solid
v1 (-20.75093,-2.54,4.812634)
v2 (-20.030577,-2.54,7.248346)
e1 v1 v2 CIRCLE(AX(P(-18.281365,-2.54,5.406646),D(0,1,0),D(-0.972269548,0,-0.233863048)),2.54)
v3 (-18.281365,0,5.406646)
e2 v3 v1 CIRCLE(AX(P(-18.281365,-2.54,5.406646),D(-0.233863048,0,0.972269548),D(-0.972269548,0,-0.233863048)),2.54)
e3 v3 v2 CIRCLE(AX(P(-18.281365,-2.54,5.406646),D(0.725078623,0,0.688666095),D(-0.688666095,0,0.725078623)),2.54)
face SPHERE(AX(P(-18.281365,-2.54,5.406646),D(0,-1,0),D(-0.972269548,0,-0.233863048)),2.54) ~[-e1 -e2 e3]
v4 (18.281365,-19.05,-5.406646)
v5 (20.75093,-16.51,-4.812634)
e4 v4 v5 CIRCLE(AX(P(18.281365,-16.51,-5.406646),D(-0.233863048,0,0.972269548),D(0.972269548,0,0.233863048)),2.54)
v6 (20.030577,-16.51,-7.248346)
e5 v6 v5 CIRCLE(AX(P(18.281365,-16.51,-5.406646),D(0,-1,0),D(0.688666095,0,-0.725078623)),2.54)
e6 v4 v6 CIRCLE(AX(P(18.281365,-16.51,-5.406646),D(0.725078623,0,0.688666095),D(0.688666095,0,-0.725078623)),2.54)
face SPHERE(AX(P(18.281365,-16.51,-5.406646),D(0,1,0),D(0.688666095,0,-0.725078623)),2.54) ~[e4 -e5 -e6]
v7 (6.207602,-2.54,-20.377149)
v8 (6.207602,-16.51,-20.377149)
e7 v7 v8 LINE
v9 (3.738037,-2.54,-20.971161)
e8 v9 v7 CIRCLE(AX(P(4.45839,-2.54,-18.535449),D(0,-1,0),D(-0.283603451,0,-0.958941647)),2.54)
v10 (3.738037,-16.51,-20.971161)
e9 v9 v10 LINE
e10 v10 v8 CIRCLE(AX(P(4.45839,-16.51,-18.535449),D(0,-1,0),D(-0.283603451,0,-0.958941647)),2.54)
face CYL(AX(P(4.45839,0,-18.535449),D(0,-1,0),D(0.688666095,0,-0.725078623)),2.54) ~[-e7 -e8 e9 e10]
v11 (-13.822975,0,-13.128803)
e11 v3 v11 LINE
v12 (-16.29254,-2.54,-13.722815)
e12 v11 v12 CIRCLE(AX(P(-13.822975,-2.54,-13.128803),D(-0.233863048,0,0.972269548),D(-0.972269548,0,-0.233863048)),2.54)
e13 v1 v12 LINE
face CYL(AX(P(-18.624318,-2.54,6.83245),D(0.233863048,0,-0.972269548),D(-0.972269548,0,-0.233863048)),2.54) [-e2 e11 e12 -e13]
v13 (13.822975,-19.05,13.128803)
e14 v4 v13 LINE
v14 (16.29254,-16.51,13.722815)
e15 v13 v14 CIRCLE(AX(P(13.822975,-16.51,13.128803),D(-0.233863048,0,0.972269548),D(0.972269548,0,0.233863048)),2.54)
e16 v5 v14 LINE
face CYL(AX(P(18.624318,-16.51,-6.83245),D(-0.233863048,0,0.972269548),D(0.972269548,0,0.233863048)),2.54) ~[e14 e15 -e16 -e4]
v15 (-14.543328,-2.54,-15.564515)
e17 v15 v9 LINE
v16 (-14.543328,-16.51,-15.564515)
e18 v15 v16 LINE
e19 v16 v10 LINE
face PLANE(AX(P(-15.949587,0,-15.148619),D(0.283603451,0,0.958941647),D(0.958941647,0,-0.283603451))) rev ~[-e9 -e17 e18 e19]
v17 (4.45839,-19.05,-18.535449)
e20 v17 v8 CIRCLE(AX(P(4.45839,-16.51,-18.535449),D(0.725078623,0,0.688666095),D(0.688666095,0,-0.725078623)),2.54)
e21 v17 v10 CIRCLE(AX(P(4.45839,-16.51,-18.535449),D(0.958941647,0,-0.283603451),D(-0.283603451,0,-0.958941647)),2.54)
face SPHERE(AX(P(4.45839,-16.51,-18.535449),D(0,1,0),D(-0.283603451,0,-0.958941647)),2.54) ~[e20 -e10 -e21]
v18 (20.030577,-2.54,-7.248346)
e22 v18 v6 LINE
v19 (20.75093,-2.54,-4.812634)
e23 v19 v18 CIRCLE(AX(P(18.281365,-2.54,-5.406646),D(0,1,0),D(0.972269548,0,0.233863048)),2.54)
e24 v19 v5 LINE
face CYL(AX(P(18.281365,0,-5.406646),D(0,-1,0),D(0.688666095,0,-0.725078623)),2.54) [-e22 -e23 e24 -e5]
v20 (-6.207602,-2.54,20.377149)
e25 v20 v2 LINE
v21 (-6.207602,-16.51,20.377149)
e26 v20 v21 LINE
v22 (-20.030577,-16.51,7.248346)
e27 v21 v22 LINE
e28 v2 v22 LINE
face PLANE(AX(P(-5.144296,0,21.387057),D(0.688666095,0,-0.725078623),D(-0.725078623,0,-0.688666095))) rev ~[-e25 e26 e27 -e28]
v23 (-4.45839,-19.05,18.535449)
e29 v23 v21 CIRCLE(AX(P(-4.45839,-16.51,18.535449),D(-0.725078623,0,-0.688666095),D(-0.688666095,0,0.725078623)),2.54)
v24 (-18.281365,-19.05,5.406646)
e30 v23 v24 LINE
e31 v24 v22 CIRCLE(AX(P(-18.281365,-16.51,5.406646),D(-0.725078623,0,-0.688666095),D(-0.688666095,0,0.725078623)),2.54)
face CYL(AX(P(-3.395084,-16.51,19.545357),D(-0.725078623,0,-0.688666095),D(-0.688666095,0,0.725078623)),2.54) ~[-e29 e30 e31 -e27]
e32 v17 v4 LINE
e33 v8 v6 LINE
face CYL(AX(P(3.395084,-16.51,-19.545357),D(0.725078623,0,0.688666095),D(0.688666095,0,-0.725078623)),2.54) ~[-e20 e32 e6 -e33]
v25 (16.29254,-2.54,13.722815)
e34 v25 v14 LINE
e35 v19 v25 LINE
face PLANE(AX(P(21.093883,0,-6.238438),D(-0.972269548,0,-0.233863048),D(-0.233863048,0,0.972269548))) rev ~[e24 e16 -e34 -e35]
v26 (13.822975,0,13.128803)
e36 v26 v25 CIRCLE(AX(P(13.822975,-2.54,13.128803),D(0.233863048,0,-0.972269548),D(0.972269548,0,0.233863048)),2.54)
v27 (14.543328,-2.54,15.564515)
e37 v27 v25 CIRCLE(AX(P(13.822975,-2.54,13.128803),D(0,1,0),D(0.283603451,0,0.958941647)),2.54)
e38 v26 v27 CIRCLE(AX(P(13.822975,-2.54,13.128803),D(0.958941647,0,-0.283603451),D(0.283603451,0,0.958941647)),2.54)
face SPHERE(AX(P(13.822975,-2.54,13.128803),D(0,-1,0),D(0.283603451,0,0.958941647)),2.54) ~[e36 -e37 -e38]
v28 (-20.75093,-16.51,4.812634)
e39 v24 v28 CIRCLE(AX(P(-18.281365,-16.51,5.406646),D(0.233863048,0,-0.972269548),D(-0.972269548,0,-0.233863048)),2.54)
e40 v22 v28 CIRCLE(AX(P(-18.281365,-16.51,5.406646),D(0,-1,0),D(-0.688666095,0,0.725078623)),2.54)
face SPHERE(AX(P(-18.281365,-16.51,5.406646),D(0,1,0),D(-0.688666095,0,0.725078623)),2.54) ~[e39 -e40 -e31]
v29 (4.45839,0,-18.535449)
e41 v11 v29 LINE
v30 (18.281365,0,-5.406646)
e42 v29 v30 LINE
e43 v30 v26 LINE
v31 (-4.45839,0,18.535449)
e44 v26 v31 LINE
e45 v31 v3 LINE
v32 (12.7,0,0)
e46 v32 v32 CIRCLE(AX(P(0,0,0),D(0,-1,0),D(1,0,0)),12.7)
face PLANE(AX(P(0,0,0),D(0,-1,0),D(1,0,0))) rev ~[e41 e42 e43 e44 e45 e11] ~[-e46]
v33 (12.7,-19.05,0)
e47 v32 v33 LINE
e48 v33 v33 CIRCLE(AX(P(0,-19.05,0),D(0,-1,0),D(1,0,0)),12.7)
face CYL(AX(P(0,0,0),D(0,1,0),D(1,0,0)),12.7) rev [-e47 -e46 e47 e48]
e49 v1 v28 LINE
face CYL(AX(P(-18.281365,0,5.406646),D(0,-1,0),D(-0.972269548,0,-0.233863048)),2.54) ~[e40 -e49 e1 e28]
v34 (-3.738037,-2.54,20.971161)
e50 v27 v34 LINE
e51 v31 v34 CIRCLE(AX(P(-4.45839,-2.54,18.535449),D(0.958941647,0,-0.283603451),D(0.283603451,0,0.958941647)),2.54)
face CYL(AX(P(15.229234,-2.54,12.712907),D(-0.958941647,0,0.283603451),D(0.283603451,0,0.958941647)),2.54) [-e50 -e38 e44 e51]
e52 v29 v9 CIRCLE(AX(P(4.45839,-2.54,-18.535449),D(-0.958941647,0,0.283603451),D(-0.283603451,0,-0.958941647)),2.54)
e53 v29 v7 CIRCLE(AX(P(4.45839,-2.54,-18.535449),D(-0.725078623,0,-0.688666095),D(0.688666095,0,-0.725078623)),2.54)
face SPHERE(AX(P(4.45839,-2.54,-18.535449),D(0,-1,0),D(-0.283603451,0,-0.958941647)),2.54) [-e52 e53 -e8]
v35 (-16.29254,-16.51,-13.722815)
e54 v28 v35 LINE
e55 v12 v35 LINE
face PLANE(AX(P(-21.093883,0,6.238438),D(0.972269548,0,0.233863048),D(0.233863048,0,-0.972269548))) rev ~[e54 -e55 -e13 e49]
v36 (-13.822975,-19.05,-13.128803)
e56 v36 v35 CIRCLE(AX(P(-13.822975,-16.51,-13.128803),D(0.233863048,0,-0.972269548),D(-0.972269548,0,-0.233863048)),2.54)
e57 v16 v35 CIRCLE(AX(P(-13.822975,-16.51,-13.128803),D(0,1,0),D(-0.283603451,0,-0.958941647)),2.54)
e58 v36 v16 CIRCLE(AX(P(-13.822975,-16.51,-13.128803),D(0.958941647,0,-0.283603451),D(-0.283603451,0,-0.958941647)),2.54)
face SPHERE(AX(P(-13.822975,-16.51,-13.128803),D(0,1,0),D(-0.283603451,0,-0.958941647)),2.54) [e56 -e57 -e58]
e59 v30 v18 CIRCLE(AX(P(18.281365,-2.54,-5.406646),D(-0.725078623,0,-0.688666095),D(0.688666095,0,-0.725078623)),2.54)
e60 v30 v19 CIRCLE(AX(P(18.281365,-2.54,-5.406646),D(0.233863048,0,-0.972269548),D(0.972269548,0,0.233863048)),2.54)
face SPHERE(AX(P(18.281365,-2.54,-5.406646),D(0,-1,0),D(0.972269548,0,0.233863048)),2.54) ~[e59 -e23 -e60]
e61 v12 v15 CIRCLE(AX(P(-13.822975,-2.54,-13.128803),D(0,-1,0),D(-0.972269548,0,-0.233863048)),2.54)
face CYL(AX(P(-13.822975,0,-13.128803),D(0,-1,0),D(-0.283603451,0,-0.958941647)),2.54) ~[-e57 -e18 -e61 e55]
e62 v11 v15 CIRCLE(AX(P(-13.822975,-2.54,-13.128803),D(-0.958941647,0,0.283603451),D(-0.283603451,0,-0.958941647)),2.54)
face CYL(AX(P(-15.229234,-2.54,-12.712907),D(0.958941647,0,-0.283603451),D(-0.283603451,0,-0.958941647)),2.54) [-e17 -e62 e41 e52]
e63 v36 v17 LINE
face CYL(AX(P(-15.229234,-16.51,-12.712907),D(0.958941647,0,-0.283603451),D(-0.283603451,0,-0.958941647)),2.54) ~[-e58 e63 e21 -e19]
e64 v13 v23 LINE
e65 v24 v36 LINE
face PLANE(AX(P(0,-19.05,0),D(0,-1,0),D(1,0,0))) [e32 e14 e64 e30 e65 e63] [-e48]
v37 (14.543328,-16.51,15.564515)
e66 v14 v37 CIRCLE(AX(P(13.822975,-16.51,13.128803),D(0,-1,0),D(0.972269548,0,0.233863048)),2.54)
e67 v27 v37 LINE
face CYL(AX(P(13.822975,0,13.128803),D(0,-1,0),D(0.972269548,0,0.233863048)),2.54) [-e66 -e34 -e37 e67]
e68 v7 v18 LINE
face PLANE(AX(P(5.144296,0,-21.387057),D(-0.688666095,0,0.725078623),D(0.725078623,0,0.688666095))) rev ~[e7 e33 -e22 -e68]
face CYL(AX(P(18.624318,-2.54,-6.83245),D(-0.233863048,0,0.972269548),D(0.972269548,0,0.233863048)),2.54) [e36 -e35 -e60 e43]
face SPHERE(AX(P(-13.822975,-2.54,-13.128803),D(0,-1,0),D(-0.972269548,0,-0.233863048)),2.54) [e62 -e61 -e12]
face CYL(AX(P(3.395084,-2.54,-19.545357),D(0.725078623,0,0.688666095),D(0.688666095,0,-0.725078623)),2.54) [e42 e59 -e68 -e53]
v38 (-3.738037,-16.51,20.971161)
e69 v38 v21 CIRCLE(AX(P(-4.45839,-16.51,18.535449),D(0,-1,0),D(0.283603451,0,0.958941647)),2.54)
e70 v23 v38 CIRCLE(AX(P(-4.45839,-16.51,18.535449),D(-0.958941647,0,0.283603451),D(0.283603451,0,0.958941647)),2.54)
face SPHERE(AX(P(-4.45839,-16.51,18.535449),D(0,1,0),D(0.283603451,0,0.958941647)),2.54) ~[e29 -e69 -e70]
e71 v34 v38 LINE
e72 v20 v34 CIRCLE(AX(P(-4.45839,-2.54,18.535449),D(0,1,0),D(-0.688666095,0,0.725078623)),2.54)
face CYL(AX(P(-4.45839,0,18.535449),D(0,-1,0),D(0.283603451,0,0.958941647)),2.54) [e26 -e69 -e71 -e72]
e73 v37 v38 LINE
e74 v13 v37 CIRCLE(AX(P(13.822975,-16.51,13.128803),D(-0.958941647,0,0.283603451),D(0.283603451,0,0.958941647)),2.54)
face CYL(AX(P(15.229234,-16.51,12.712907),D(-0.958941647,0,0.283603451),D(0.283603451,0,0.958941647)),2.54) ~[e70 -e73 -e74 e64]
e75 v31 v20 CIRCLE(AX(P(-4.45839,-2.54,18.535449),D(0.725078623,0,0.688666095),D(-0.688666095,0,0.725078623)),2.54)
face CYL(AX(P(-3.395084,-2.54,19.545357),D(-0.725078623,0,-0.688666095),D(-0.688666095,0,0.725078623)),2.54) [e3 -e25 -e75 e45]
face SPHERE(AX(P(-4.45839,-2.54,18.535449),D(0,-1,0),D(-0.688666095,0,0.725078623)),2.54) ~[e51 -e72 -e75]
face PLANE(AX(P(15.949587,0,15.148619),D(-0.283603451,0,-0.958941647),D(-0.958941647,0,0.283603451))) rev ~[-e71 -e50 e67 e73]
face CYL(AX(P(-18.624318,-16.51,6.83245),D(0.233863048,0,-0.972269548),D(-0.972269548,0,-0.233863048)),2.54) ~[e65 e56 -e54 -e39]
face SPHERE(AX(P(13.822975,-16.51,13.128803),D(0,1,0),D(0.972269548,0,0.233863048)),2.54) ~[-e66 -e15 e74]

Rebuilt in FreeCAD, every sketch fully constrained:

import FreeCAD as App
import Part
import Sketcher
Q = App.Units.Quantity


def edges_at(feature, points):
    """Names of the edges that pass closest to the given points."""
    edges = feature.Shape.Edges
    near = lambda p: min(range(len(edges)), key=lambda i: edges[i].distToShape(Part.Vertex(*p))[0])
    return sorted({f"Edge{near(p) + 1}" for p in points})


def add_polygon(sketch, points):
    """Adds a closed chain of lines whose ends are joined by coincident constraints."""
    first, n = sketch.GeometryCount, len(points)
    for a, b in zip(points, points[1:] + points[:1]):
        sketch.addGeometry(Part.LineSegment(App.Vector(*a, 0), App.Vector(*b, 0)), False)
    for i in range(n):
        sketch.addConstraint(Sketcher.Constraint("Coincident", first + i, 2, first + (i + 1) % n, 1))

doc = App.newDocument("Part")
body = doc.addObject("PartDesign::Body", "Body")

sketch1 = doc.addObject("Sketcher::SketchObject", "Sketch")
body.addObject(sketch1)
sketch1.AttachmentSupport = (doc.XZ_Plane, [""])
sketch1.MapMode = "FlatFace"
add_polygon(sketch1, [(5.144296, -21.387057), (21.093883, -6.238438), (15.949587, 15.148619), (-5.144296, 21.387057), (-21.093883, 6.238438), (-15.949587, -15.148619)])
sketch1.addGeometry(Part.Circle(App.Vector(0, 0, 0), App.Vector(0, 0, 1), 12.7), False)
sketch1.addConstraint(Sketcher.Constraint("Coincident", 6, 3, -1, 1))
sketch1.addConstraint(Sketcher.Constraint("Symmetric", 0, 2, 3, 2, -1, 1))
sketch1.addConstraint(Sketcher.Constraint("Symmetric", 1, 2, 4, 2, -1, 1))
sketch1.addConstraint(Sketcher.Constraint("Symmetric", 2, 2, 5, 2, -1, 1))
sketch1.addConstraint(Sketcher.Constraint("Equal", 0, 1))
sketch1.addConstraint(Sketcher.Constraint("Equal", 1, 2))
sketch1.addConstraint(Sketcher.Constraint("Diameter", 6, Q("1 in")))
sketch1.addConstraint(Sketcher.Constraint("DistanceY", 0, 2, -1, 1, Q("6.238438 mm")))
sketch1.addConstraint(Sketcher.Constraint("DistanceY", -1, 1, 1, 2, Q("15.148619 mm")))
sketch1.addConstraint(Sketcher.Constraint("DistanceX", 2, 2, 0, 2, Q("26.238179 mm")))
sketch1.addConstraint(Sketcher.Constraint("DistanceY", 3, 2, 2, 2, Q("15.148619 mm")))
pad1 = doc.addObject("PartDesign::Pad", "Pad")
body.addObject(pad1)
pad1.Profile = sketch1
pad1.Length = Q("0.75 in")
doc.recompute()

fillet = doc.addObject("PartDesign::Fillet", "Fillet")
body.addObject(fillet)
fillet.Base = (pad1, edges_at(pad1, [
    (-5.403, -19.05, -18.268),
    (13.119, -19.05, -13.813),
    (18.522, -19.05, 4.455),
    (5.403, -19.05, 18.268),
    (-13.119, -19.05, 13.813),
    (-18.522, -19.05, -4.455),
    (-5.403, 0, -18.268),
    (-15.95, -9.525, -15.149),
    (-18.522, 0, -4.455),
    (-13.119, 0, 13.813),
    (5.403, 0, 18.268),
    (18.522, 0, 4.455),
    (13.119, 0, -13.813),
    (-21.094, -9.525, 6.238),
    (-5.144, -9.525, 21.387),
    (15.95, -9.525, 15.149),
    (21.094, -9.525, -6.238),
    (5.144, -9.525, -21.387),
]))
fillet.Radius = Q("0.1 in")

doc.recompute()
